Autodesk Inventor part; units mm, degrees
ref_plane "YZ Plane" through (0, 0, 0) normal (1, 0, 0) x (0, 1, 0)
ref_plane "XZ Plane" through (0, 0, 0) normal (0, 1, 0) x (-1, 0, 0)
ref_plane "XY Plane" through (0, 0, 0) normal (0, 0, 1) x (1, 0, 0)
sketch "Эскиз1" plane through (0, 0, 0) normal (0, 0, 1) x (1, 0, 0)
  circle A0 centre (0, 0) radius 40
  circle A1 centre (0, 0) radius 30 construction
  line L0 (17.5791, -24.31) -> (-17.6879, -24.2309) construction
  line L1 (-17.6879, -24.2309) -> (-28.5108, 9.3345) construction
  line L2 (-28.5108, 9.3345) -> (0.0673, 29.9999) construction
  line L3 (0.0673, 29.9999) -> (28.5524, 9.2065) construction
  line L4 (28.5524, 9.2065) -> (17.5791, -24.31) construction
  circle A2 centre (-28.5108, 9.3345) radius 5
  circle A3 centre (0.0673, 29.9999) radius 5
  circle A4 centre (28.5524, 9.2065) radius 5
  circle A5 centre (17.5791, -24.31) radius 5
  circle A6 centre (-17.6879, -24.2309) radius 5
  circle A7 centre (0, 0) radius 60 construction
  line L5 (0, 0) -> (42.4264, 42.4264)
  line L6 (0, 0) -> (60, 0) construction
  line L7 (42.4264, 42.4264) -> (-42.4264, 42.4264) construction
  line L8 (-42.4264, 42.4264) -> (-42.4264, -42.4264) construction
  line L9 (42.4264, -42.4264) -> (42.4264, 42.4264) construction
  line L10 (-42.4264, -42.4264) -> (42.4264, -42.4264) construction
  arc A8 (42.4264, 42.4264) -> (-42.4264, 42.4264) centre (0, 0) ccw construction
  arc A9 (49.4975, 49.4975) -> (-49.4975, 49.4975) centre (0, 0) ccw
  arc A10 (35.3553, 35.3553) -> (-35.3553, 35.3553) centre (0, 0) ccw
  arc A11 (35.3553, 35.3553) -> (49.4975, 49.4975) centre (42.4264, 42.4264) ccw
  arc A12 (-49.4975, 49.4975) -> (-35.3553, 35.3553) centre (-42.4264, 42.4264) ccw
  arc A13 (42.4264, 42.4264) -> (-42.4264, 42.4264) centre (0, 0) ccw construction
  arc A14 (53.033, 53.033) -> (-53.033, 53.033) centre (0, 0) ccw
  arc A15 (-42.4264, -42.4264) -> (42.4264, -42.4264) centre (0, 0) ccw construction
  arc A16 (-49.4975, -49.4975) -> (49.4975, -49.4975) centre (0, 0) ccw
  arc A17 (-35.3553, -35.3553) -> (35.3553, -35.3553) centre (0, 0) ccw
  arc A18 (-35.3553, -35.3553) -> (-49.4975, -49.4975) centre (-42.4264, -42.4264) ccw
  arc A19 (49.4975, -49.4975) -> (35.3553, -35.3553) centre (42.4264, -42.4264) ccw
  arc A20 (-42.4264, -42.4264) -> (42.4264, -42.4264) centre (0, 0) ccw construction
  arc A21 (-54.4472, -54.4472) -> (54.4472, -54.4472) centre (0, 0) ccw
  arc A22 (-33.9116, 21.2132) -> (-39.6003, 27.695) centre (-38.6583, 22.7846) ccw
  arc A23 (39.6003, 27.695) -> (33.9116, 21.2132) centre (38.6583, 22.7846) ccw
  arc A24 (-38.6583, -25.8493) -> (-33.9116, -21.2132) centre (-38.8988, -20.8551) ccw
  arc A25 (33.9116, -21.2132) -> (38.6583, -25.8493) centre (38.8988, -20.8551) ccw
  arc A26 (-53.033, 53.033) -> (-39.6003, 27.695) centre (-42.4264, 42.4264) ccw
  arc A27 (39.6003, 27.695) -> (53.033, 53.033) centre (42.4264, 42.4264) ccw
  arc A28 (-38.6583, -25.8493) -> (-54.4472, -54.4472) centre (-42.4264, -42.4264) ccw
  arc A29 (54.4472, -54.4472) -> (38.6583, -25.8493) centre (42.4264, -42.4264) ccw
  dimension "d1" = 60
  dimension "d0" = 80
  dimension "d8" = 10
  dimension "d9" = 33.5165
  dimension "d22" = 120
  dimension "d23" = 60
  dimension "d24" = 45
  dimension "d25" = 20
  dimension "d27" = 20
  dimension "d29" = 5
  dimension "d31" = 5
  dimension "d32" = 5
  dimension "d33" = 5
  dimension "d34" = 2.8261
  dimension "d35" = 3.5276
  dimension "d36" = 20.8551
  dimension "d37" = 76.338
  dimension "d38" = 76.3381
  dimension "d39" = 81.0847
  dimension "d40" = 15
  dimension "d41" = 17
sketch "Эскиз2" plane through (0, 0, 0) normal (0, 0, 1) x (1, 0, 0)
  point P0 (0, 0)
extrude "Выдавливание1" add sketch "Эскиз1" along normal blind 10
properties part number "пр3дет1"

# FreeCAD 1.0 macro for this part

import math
import FreeCAD as App
import Part
import Sketcher

doc = App.newDocument("Part")
body = doc.addObject("PartDesign::Body", "Body")

sketch1 = body.newObject("Sketcher::SketchObject", "Sketch")
sketch1.AttachmentSupport = (doc.getObject("XY_Plane"), [""])
sketch1.MapMode = "FlatFace"
sketch1.addGeometry([
    Part.ArcOfCircle(Part.Circle(App.Vector(0, 0, 0), App.Vector(0, 0, 1), 40), math.radians(-32.027794), math.radians(32.027794)),
    Part.ArcOfCircle(Part.Circle(App.Vector(38.6583, 22.7846, 0), App.Vector(0, 0, 1), 4.999939), math.radians(79.140442), math.radians(198.317179)),
    Part.ArcOfCircle(Part.Circle(App.Vector(42.4264, 42.4264, 0), App.Vector(0, 0, 1), 15.000033), math.radians(-100.85979), math.radians(45)),
    Part.ArcOfCircle(Part.Circle(App.Vector(0, 0, 0), App.Vector(0, 0, 1), 74.999988), math.radians(45), math.radians(135)),
    Part.ArcOfCircle(Part.Circle(App.Vector(-42.4264, 42.4264, 0), App.Vector(0, 0, 1), 14.999998), math.radians(135), math.radians(280.85979)),
    Part.ArcOfCircle(Part.Circle(App.Vector(-38.6583, 22.7846, 0), App.Vector(0, 0, 1), 5.000046), math.radians(-18.317179), math.radians(100.859558)),
    Part.ArcOfCircle(Part.Circle(App.Vector(0, 0, 0), App.Vector(0, 0, 1), 40), math.radians(147.972206), math.radians(212.027794)),
    Part.ArcOfCircle(Part.Circle(App.Vector(-38.8988, -20.8551, 0), App.Vector(0, 0, 1), 4.999987), math.radians(-87.243002), math.radians(-4.107007)),
    Part.ArcOfCircle(Part.Circle(App.Vector(-42.4264, -42.4264, 0), App.Vector(0, 0, 1), 16.999965), math.radians(77.193837), math.radians(225)),
    Part.ArcOfCircle(Part.Circle(App.Vector(0, 0, 0), App.Vector(0, 0, 1), 76.999969), math.radians(-135), math.radians(-45)),
    Part.ArcOfCircle(Part.Circle(App.Vector(42.4264, -42.4264, 0), App.Vector(0, 0, 1), 16.999978), math.radians(-45), math.radians(102.806163)),
    Part.ArcOfCircle(Part.Circle(App.Vector(38.8988, -20.8551, 0), App.Vector(0, 0, 1), 5.00004), math.radians(-175.892993), math.radians(-92.756998)),
    Part.Circle(App.Vector(-17.6879, -24.2309, 0), App.Vector(0, 0, 1), 5),
    Part.Circle(App.Vector(17.5791, -24.31, 0), App.Vector(0, 0, 1), 5),
    Part.Circle(App.Vector(-28.5108, 9.3345, 0), App.Vector(0, 0, 1), 5),
    Part.Circle(App.Vector(28.5524, 9.2065, 0), App.Vector(0, 0, 1), 5),
    Part.Circle(App.Vector(0.0673, 29.9999, 0), App.Vector(0, 0, 1), 5),
    Part.ArcOfCircle(Part.Circle(App.Vector(-42.4264, -42.4264, 0), App.Vector(0, 0, 1), 10.000046), math.radians(45), math.radians(225)),
    Part.ArcOfCircle(Part.Circle(App.Vector(0, 0, 0), App.Vector(0, 0, 1), 49.999945), math.radians(-135), math.radians(-45)),
    Part.ArcOfCircle(Part.Circle(App.Vector(42.4264, -42.4264, 0), App.Vector(0, 0, 1), 10.000046), math.radians(-45), math.radians(135)),
    Part.ArcOfCircle(Part.Circle(App.Vector(0, 0, 0), App.Vector(0, 0, 1), 70.000036), math.radians(-135), math.radians(-45)),
    Part.ArcOfCircle(Part.Circle(App.Vector(0, 0, 0), App.Vector(0, 0, 1), 49.999945), math.radians(45), math.radians(135)),
    Part.ArcOfCircle(Part.Circle(App.Vector(-42.4264, 42.4264, 0), App.Vector(0, 0, 1), 10.000046), math.radians(135), math.radians(315)),
    Part.ArcOfCircle(Part.Circle(App.Vector(0, 0, 0), App.Vector(0, 0, 1), 70.000036), math.radians(45), math.radians(135)),
    Part.ArcOfCircle(Part.Circle(App.Vector(42.4264, 42.4264, 0), App.Vector(0, 0, 1), 10.000046), math.radians(-135), math.radians(45)),
], False)
sketch1.addConstraint([
    Sketcher.Constraint("Coincident", 0, 2, 1, 2),
    Sketcher.Constraint("Tangent", 1, 1, 2, 1),
    Sketcher.Constraint("Tangent", 2, 2, 3, 1),
    Sketcher.Constraint("Tangent", 3, 2, 4, 1),
    Sketcher.Constraint("Tangent", 4, 2, 5, 2),
    Sketcher.Constraint("Coincident", 5, 1, 6, 1),
    Sketcher.Constraint("Coincident", 6, 2, 7, 2),
    Sketcher.Constraint("Coincident", 7, 1, 8, 1),
    Sketcher.Constraint("Tangent", 8, 2, 9, 1),
    Sketcher.Constraint("Tangent", 9, 2, 10, 1),
    Sketcher.Constraint("Coincident", 10, 2, 11, 2),
    Sketcher.Constraint("Coincident", 11, 1, 0, 1),
    Sketcher.Constraint("Tangent", 17, 1, 18, 1),
    Sketcher.Constraint("Tangent", 18, 2, 19, 2),
    Sketcher.Constraint("Tangent", 19, 1, 20, 2),
    Sketcher.Constraint("Tangent", 20, 1, 17, 2),
    Sketcher.Constraint("Tangent", 21, 2, 22, 2),
    Sketcher.Constraint("Tangent", 22, 1, 23, 2),
    Sketcher.Constraint("Tangent", 23, 1, 24, 2),
    Sketcher.Constraint("Tangent", 24, 1, 21, 1),
    Sketcher.Constraint("Coincident", 0, 3, -1, 1),
    Sketcher.Constraint("Coincident", 3, 3, -1, 1),
    Sketcher.Constraint("Coincident", 6, 3, -1, 1),
    Sketcher.Constraint("Coincident", 9, 3, -1, 1),
    Sketcher.Constraint("Coincident", 18, 3, -1, 1),
    Sketcher.Constraint("Coincident", 20, 3, -1, 1),
    Sketcher.Constraint("Coincident", 21, 3, -1, 1),
    Sketcher.Constraint("Coincident", 23, 3, -1, 1),
    Sketcher.Constraint("Coincident", 17, 3, 8, 3),
    Sketcher.Constraint("Coincident", 19, 3, 10, 3),
    Sketcher.Constraint("Coincident", 22, 3, 4, 3),
    Sketcher.Constraint("Coincident", 24, 3, 2, 3),
    Sketcher.Constraint("Equal", 1, 5),
    Sketcher.Constraint("Equal", 0, 6),
    Sketcher.Constraint("Equal", 5, 7),
    Sketcher.Constraint("Equal", 7, 11),
    Sketcher.Constraint("Equal", 11, 12),
    Sketcher.Constraint("Equal", 12, 13),
    Sketcher.Constraint("Equal", 13, 14),
    Sketcher.Constraint("Equal", 14, 15),
    Sketcher.Constraint("Equal", 15, 16),
    Sketcher.Constraint("Equal", 18, 21),
    Sketcher.Constraint("Equal", 19, 22),
    Sketcher.Constraint("Symmetric", 1, 3, 5, 3, -2),
    Sketcher.Constraint("Symmetric", 7, 3, 11, 3, -2),
    Sketcher.Constraint("Horizontal", 8, 3, 10, 3),
    Sketcher.Constraint("Vertical", 4, 3, 8, 3),
    Sketcher.Constraint("Vertical", 5, 1, 6, 2),
    Sketcher.Constraint("Vertical", 5, 3, 7, 1),
    Sketcher.Constraint("Diameter", 12, 10.0),
    Sketcher.Constraint("Radius", 0, 40.0),
    Sketcher.Constraint("Radius", 2, 15.0),
    Sketcher.Constraint("Radius", 8, 17.0),
    Sketcher.Constraint("Radius", 17, 10.0),
    Sketcher.Constraint("Radius", 3, 75.0),
    Sketcher.Constraint("DistanceY", 7, 3, -1, 1, 20.855),
    Sketcher.Constraint("DistanceY", -1, 1, 16, 3, 30.0),
    Sketcher.Constraint("DistanceX", 1, 1, 2, 3, 2.826),
    Sketcher.Constraint("DistanceY", 13, 3, -1, 1, 24.31),
    Sketcher.Constraint("DistanceY", 14, 3, 5, 3, 13.45),
    Sketcher.Constraint("DistanceY", 15, 3, 24, 3, 33.22),
    Sketcher.Constraint("DistanceX", 12, 3, -1, 1, 17.688),
    Sketcher.Constraint("DistanceY", 12, 3, -1, 1, 24.231),
    Sketcher.Constraint("DistanceX", -1, 1, 13, 3, 17.579),
    Sketcher.Constraint("DistanceX", 15, 3, 1, 3, 10.106),
    Sketcher.Constraint("DistanceX", 16, 3, 15, 3, 28.485),
    Sketcher.Constraint("DistanceX", 14, 3, -1, 1, 28.5108),
])
pad1 = body.newObject("PartDesign::Pad", "Pad")
pad1.Profile = sketch1
pad1.Length = 10

doc.recompute()
